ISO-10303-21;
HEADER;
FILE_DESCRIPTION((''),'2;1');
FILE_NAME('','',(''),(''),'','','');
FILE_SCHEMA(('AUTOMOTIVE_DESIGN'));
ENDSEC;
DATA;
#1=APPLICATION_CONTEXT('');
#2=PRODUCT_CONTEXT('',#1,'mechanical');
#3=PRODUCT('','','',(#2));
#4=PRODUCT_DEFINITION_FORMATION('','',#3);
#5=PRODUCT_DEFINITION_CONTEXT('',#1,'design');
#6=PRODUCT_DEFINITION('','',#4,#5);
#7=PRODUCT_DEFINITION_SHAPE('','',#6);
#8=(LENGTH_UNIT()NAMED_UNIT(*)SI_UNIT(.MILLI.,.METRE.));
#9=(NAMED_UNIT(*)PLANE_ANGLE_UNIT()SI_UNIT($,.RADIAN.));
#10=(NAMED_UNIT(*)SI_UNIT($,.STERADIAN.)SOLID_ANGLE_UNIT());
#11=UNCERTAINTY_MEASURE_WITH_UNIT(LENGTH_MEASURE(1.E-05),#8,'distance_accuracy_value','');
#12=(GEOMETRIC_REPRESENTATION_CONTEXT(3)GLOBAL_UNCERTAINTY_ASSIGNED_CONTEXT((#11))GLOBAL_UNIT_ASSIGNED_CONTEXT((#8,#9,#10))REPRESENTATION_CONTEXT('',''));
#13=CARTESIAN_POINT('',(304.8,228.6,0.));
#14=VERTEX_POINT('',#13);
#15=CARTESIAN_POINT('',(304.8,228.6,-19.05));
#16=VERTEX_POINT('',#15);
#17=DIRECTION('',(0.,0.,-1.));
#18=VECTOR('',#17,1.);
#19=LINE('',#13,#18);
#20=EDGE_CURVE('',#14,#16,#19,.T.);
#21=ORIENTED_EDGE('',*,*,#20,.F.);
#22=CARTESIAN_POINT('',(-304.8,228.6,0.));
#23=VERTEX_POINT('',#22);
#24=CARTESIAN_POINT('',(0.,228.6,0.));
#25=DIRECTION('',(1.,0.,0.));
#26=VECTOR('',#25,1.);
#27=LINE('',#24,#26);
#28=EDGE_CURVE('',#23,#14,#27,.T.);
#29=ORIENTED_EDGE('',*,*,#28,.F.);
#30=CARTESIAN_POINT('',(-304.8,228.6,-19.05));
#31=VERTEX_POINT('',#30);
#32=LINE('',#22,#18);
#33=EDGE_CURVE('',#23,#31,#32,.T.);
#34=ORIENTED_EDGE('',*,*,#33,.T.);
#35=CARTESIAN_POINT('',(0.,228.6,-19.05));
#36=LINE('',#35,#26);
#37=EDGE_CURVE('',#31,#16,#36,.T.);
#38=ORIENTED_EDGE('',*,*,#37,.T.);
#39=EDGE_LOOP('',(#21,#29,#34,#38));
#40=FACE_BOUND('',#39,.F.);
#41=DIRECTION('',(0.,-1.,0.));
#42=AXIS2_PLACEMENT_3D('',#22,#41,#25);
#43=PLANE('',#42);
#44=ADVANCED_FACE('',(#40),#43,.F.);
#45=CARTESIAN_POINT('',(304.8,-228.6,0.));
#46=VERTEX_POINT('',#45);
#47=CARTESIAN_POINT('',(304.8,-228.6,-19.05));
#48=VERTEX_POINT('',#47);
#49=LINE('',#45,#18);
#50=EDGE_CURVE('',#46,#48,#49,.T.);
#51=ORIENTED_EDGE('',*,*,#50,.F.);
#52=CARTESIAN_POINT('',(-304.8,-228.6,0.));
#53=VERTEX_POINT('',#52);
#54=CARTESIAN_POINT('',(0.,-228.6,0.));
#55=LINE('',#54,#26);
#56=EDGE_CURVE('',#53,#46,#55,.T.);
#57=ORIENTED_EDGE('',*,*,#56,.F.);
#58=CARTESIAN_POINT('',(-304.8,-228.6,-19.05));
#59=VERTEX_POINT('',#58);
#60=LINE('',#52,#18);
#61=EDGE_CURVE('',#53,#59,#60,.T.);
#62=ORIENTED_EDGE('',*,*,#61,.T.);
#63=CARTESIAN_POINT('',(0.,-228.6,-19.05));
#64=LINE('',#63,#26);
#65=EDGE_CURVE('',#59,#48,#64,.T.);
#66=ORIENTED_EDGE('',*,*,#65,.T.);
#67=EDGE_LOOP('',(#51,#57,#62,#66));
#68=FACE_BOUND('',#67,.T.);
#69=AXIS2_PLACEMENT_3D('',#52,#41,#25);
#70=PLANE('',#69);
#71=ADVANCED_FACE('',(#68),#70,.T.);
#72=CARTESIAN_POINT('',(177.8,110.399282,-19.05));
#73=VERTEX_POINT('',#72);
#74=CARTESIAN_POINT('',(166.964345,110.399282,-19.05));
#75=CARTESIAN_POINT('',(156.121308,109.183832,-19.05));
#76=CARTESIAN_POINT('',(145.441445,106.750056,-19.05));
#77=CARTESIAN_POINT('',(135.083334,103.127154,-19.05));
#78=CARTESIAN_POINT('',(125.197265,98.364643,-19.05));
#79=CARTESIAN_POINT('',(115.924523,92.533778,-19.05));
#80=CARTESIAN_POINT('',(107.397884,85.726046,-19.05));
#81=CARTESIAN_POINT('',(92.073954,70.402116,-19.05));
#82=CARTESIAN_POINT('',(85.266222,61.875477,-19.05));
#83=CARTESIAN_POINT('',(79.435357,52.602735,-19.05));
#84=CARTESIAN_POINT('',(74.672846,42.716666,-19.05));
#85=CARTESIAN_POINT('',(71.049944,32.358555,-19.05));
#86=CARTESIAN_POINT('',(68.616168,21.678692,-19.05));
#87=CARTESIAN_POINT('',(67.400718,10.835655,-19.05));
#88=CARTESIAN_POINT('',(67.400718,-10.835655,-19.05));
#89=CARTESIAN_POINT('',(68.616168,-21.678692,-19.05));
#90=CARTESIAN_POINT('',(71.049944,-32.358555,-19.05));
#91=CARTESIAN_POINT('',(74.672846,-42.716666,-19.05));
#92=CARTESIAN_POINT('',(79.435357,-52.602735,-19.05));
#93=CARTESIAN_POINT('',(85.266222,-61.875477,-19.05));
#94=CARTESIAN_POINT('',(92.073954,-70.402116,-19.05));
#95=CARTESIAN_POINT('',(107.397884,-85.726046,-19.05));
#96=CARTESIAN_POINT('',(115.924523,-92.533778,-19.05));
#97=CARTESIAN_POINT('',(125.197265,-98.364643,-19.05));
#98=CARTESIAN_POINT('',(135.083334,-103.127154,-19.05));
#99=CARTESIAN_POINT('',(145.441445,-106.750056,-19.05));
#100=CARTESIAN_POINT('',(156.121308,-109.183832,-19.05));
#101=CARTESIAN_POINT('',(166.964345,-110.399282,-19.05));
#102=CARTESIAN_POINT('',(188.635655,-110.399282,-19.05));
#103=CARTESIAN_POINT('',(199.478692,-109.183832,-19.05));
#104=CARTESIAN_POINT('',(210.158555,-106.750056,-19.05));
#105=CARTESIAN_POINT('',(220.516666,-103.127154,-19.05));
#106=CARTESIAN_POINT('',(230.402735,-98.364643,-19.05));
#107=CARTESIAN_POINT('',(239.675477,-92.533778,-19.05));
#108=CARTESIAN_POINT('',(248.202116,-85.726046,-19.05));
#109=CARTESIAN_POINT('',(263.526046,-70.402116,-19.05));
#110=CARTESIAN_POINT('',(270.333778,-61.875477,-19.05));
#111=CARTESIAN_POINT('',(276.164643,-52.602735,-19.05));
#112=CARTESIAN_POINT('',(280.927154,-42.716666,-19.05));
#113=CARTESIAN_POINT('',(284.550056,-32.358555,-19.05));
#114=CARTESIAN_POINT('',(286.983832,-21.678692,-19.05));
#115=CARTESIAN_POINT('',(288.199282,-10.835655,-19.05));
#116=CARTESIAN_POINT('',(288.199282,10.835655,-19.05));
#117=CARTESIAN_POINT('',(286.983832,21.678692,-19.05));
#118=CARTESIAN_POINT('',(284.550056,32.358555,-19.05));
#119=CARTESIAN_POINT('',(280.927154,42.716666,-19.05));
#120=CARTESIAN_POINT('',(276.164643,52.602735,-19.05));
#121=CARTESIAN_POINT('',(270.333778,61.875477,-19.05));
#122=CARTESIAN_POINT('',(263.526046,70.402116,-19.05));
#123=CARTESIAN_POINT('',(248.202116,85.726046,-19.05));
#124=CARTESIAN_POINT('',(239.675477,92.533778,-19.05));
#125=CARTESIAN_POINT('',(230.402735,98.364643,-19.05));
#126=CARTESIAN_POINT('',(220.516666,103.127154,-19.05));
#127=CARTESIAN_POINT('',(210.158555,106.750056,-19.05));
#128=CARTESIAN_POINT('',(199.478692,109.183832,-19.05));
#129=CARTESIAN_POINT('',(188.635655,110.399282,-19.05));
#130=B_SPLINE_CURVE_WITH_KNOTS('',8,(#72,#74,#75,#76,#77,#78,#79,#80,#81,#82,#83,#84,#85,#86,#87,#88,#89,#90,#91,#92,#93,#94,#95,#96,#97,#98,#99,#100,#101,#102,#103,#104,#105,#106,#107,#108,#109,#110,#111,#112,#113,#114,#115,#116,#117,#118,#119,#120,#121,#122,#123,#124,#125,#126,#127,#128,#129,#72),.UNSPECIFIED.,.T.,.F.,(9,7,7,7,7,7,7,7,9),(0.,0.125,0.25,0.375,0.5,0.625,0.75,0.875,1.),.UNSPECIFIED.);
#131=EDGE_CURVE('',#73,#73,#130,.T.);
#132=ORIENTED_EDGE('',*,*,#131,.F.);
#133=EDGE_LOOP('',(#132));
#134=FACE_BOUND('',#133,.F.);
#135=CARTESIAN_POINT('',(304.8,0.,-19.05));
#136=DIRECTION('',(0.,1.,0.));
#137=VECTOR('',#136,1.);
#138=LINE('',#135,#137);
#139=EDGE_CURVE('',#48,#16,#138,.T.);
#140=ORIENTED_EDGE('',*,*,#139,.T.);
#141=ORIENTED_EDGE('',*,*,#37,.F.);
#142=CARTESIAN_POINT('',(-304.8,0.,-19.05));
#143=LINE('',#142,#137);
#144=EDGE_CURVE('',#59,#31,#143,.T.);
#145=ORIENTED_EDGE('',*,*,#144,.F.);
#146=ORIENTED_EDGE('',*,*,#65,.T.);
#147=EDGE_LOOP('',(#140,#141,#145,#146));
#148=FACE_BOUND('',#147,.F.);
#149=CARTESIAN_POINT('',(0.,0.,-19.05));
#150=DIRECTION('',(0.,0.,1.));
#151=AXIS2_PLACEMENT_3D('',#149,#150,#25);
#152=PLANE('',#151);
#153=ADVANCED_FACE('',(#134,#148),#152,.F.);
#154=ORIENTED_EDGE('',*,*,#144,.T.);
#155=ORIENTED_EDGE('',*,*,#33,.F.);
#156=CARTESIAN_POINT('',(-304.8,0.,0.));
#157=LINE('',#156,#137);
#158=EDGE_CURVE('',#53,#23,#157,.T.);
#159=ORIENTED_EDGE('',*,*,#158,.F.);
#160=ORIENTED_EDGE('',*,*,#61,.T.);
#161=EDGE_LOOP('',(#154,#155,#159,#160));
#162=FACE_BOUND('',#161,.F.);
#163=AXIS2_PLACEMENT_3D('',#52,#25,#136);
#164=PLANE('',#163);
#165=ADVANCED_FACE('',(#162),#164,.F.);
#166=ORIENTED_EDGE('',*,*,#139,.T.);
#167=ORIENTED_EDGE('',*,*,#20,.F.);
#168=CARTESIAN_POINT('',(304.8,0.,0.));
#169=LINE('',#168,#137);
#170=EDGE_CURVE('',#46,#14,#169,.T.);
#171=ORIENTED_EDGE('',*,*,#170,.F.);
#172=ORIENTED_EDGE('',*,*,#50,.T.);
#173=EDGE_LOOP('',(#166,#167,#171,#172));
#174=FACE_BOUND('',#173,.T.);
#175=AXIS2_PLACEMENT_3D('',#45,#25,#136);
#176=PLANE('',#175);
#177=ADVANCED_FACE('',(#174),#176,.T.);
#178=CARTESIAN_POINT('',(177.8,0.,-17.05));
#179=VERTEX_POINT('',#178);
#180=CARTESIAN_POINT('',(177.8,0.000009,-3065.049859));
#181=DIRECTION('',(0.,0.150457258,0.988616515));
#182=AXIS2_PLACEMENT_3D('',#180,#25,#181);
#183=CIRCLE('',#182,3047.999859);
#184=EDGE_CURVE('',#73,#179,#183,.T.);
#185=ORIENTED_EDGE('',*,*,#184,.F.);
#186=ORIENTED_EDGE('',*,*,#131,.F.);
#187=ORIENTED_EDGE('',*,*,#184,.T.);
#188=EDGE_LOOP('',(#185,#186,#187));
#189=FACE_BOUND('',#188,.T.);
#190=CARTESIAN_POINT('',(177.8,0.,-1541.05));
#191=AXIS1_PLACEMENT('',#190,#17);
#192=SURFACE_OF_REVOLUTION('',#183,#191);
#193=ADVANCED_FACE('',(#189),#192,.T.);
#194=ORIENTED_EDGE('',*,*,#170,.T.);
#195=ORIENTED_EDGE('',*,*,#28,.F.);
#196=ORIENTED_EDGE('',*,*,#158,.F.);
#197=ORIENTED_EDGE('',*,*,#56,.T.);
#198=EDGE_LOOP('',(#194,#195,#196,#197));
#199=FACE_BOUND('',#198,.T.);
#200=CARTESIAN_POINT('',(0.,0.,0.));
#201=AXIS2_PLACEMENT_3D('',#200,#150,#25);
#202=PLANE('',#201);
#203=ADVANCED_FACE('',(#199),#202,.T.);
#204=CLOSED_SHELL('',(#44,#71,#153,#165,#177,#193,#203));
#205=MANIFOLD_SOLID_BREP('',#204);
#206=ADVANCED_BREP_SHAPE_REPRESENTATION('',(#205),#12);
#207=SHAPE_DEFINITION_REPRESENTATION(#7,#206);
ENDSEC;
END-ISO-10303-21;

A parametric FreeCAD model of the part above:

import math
import FreeCAD as App
import Part
import Sketcher
Q = App.Units.Quantity


def add_polygon(sketch, points):
    """Adds a closed chain of lines whose ends are joined by coincident constraints."""
    first, n = sketch.GeometryCount, len(points)
    for a, b in zip(points, points[1:] + points[:1]):
        sketch.addGeometry(Part.LineSegment(App.Vector(*a, 0), App.Vector(*b, 0)), False)
    for i in range(n):
        sketch.addConstraint(Sketcher.Constraint("Coincident", first + i, 2, first + (i + 1) % n, 1))

doc = App.newDocument("Part")
body = doc.addObject("PartDesign::Body", "Body")

sketch1 = doc.addObject("Sketcher::SketchObject", "Sketch")
body.addObject(sketch1)
sketch1.AttachmentSupport = (doc.XY_Plane, [""])
sketch1.MapMode = "FlatFace"
add_polygon(sketch1, [(-305, 229), (-305, -229), (305, -229), (305, 229)])
sketch1.addConstraint(Sketcher.Constraint("Vertical", 0))
sketch1.addConstraint(Sketcher.Constraint("Horizontal", 1))
sketch1.addConstraint(Sketcher.Constraint("Vertical", 2))
sketch1.addConstraint(Sketcher.Constraint("Horizontal", 3))
sketch1.addConstraint(Sketcher.Constraint("Symmetric", 0, 2, 2, 2, -1, 1))
sketch1.addConstraint(Sketcher.Constraint("DistanceX", 1, 1, 1, 2, Q("24 in")))
sketch1.addConstraint(Sketcher.Constraint("DistanceY", 0, 2, 0, 1, Q("18 in")))
pad1 = doc.addObject("PartDesign::Pad", "Pad")
body.addObject(pad1)
pad1.Profile = sketch1
pad1.Length = Q("0.75 in")
pad1.Reversed = True

sketch2 = doc.addObject("Sketcher::SketchObject", "Sketch001")
body.addObject(sketch2)
sketch2.AttachmentSupport = (doc.YZ_Plane, [""])
sketch2.MapMode = "FlatFace"
sketch2.AttachmentOffset = App.Placement(App.Vector(0, 0, 7 * 25.4), App.Rotation())
sketch2.addGeometry(Part.ArcOfCircle(Part.Circle(App.Vector(0, -3065, 0), App.Vector(0, 0, 1), 3048), math.radians(81.35), math.radians(90)), False)
sketch2.addGeometry(Part.LineSegment(App.Vector(0, -17, 0), App.Vector(0, -3065, 0)), False)
sketch2.addGeometry(Part.LineSegment(App.Vector(0, -3065, 0), App.Vector(459, -52, 0)), False)
sketch2.addConstraint(Sketcher.Constraint("Coincident", 0, 2, 1, 1))
sketch2.addConstraint(Sketcher.Constraint("Coincident", 1, 2, 2, 1))
sketch2.addConstraint(Sketcher.Constraint("Coincident", 2, 2, 0, 1))
sketch2.addConstraint(Sketcher.Constraint("Vertical", 1))
sketch2.addConstraint(Sketcher.Constraint("PointOnObject", 1, 2, -2))
sketch2.addConstraint(Sketcher.Constraint("DistanceY", 1, 2, 1, 1, Q("120 in")))
sketch2.addConstraint(Sketcher.Constraint("Distance", 2, Q("120 in")))
sketch2.addConstraint(Sketcher.Constraint("Radius", 0, Q("3047.999859 mm")))
sketch2.addConstraint(Sketcher.Constraint("DistanceY", 0, 2, -1, 1, Q("17.05 mm")))
sketch2.addConstraint(Sketcher.Constraint("DistanceX", 0, 3, 2, 2, Q("458.593701 mm")))
groove = doc.addObject("PartDesign::Groove", "Groove")
body.addObject(groove)
groove.Profile = sketch2
groove.ReferenceAxis = (sketch2, ["V_Axis"])
groove.Angle = 360

doc.recompute()
